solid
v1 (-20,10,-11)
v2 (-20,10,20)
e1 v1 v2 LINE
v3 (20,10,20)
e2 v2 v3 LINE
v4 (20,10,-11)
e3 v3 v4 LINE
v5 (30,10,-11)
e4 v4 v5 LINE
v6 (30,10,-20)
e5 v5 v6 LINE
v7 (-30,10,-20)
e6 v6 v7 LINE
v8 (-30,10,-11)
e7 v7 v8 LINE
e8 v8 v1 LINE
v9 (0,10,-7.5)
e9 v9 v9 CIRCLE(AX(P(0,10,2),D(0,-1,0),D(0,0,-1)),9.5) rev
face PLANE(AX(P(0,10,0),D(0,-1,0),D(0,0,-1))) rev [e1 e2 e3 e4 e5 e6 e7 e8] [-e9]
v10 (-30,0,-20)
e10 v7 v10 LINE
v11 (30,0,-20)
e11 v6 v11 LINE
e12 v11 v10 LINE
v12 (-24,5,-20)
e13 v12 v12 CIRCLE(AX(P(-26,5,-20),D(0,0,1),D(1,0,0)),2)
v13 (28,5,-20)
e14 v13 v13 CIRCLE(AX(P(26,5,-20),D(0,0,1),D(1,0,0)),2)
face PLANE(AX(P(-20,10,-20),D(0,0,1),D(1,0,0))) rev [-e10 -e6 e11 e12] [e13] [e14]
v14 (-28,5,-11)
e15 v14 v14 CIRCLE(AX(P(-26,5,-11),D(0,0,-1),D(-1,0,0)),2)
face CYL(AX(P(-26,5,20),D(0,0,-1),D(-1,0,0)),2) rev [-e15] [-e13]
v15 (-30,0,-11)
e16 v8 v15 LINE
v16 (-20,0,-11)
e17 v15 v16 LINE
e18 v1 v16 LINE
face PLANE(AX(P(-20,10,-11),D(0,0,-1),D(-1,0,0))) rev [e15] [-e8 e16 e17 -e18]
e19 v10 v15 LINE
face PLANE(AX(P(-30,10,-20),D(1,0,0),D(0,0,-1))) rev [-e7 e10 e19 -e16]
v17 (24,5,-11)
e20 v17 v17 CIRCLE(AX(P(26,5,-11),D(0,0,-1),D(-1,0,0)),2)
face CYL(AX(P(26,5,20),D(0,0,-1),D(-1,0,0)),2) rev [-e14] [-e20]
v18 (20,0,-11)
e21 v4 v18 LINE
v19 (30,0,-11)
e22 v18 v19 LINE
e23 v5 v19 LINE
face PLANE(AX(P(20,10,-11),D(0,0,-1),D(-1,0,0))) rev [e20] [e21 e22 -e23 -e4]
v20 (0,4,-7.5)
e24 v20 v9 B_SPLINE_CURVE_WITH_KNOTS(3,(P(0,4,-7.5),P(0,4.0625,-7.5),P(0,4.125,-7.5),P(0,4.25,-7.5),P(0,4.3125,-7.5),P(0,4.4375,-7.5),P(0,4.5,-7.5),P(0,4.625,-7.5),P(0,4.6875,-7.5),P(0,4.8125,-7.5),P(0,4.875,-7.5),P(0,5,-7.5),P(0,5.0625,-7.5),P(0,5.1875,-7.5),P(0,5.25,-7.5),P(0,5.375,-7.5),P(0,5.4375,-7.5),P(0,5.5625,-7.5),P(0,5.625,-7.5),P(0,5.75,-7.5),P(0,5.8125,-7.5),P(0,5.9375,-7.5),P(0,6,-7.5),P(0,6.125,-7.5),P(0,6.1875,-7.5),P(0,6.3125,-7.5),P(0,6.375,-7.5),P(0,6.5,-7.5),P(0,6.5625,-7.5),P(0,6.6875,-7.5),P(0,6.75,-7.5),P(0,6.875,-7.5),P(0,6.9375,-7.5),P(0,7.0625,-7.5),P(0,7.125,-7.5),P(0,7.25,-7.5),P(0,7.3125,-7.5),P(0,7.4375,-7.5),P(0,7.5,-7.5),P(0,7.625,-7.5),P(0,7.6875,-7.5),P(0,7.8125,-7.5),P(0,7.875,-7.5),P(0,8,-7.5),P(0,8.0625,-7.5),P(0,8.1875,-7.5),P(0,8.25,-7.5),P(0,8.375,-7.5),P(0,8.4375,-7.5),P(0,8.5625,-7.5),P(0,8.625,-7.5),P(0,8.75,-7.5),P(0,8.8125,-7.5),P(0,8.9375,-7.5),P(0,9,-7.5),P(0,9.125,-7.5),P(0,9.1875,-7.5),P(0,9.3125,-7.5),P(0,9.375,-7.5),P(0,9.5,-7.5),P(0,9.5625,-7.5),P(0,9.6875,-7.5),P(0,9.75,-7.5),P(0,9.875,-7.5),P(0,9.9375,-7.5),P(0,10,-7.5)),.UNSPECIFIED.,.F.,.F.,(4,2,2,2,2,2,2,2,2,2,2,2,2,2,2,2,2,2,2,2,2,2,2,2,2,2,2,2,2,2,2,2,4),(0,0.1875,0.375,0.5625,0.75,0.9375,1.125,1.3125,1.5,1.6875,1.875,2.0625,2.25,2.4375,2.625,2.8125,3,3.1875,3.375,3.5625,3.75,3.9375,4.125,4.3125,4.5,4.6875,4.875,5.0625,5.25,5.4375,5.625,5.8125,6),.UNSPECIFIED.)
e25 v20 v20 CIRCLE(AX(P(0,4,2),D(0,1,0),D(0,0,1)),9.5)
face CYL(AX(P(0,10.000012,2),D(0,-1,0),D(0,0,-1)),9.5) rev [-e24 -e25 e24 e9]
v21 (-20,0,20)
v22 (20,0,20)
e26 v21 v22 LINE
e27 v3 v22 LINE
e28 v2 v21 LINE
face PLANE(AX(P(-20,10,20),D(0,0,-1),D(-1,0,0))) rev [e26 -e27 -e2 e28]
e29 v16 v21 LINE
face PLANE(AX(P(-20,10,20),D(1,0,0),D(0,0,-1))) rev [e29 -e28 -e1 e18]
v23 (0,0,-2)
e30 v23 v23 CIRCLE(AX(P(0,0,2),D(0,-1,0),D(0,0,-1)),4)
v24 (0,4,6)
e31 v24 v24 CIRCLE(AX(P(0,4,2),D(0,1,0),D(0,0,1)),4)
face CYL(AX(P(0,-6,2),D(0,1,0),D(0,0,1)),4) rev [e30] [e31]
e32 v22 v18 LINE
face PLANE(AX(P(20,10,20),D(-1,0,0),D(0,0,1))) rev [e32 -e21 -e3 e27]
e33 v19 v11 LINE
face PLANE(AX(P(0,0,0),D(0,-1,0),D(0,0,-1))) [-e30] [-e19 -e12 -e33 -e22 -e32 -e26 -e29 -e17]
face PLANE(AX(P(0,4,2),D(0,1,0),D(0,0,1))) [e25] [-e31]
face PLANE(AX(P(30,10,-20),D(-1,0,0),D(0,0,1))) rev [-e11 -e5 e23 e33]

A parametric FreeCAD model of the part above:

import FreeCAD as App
import Part
import Sketcher
from FreeCAD import Vector
Q = App.Units.Quantity


def add_polygon(sketch, points):
    """Adds a closed chain of lines whose ends are joined by coincident constraints."""
    first, n = sketch.GeometryCount, len(points)
    for a, b in zip(points, points[1:] + points[:1]):
        sketch.addGeometry(Part.LineSegment(App.Vector(*a, 0), App.Vector(*b, 0)), False)
    for i in range(n):
        sketch.addConstraint(Sketcher.Constraint("Coincident", first + i, 2, first + (i + 1) % n, 1))

doc = App.newDocument("Part")
params = doc.addObject("Spreadsheet::Sheet", "Params")
for row, (alias, value) in enumerate([
    ("sketch1_width", "40 mm"),
    ("sketch1_width2", "10 mm"),
    ("sketch1_height", "31 mm"),
    ("sketch1_height2", "9 mm"),
    ("pad1_length", "10 mm"),
    ("sketch2_diameter", "19 mm"),
    ("pocket1_length", "38.416574 mm"),
    ("pocket1_length2", "6 mm"),
    ("sketch3_diameter", "8 mm"),
    ("pocket2_length", "10 mm"),
    ("sketch4_diameter", "4 mm"),
], start=1):
    params.set(f"A{row}", alias)
    params.set(f"B{row}", "=" + value)
    params.setAlias(f"B{row}", alias)

body = doc.addObject("PartDesign::Body", "Body")

sketch1 = body.newObject("Sketcher::SketchObject", "Sketch")
sketch1.AttachmentSupport = (doc.getObject("XZ_Plane"), [""])
sketch1.MapMode = "FlatFace"
add_polygon(sketch1, [(-20, 20), (20, 20), (20, -11), (30, -11), (30, -20), (-30, -20), (-30, -11), (-20, -11)])
sketch1.addConstraint([
    Sketcher.Constraint("Horizontal", 0),
    Sketcher.Constraint("Vertical", 1),
    Sketcher.Constraint("Horizontal", 2),
    Sketcher.Constraint("Vertical", 3),
    Sketcher.Constraint("Horizontal", 4),
    Sketcher.Constraint("Vertical", 5),
    Sketcher.Constraint("Horizontal", 6),
    Sketcher.Constraint("Vertical", 7),
    Sketcher.Constraint("Symmetric", 2, 2, 5, 2, -2),
    Sketcher.Constraint("Equal", 2, 6),
    Sketcher.Constraint("DistanceX", 0, 1, 0, 2, Q("40 mm")),
    Sketcher.Constraint("DistanceX", 2, 1, 2, 2, Q("10 mm")),
    Sketcher.Constraint("DistanceY", 1, 2, 1, 1, Q("31 mm")),
    Sketcher.Constraint("DistanceY", 3, 2, 3, 1, Q("9 mm")),
    Sketcher.Constraint("DistanceY", -1, 1, 0, 2, Q("20 mm")),
])
sketch1.setExpression("Constraints[18]", "Params.sketch1_width")
sketch1.setExpression("Constraints[19]", "Params.sketch1_width2")
sketch1.setExpression("Constraints[20]", "Params.sketch1_height")
sketch1.setExpression("Constraints[21]", "Params.sketch1_height2")
pad1 = body.newObject("PartDesign::Pad", "Pad")
pad1.Profile = sketch1
pad1.setExpression("Length", "Params.pad1_length")
pad1.Reversed = True

sketch2 = body.newObject("Sketcher::SketchObject", "Sketch001")
sketch2.AttachmentSupport = (doc.getObject("XZ_Plane"), [""])
sketch2.MapMode = "FlatFace"
sketch2.AttachmentOffset = App.Placement(Vector(0, 0, -10), App.Rotation())
sketch2.addGeometry(Part.Circle(Vector(0, 2, 0), Vector(0, 0, 1), 9.5), False)
sketch2.addConstraint([
    Sketcher.Constraint("PointOnObject", 0, 3, -2),
    Sketcher.Constraint("Diameter", 0, Q("19 mm")),
    Sketcher.Constraint("DistanceY", -1, 1, 0, 3, Q("2 mm")),
])
sketch2.setExpression("Constraints[1]", "Params.sketch2_diameter")
pocket1 = body.newObject("PartDesign::Pocket", "Pocket")
pocket1.Profile = sketch2
pocket1.Type = "TwoLengths"
pocket1.setExpression("Length", "Params.pocket1_length")
pocket1.setExpression("Length2", "Params.pocket1_length2")

sketch3 = body.newObject("Sketcher::SketchObject", "Sketch002")
sketch3.AttachmentSupport = (doc.getObject("XZ_Plane"), [""])
sketch3.MapMode = "FlatFace"
sketch3.AttachmentOffset = App.Placement(Vector(0, 0, -4), App.Rotation())
sketch3.addGeometry(Part.Circle(Vector(0, 2, 0), Vector(0, 0, 1), 4), False)
sketch3.addConstraint([
    Sketcher.Constraint("PointOnObject", 0, 3, -2),
    Sketcher.Constraint("Diameter", 0, Q("8 mm")),
    Sketcher.Constraint("DistanceY", -1, 1, 0, 3, Q("2 mm")),
])
sketch3.setExpression("Constraints[1]", "Params.sketch3_diameter")
pocket2 = body.newObject("PartDesign::Pocket", "Pocket001")
pocket2.Profile = sketch3
pocket2.setExpression("Length", "Params.pocket2_length")
pocket2.Reversed = True

sketch4 = body.newObject("Sketcher::SketchObject", "Sketch003")
sketch4.AttachmentSupport = (doc.getObject("XY_Plane"), [""])
sketch4.MapMode = "FlatFace"
sketch4.AttachmentOffset = App.Placement(Vector(0, 0, -20), App.Rotation())
sketch4.addGeometry([
    Part.Circle(Vector(26, 5, 0), Vector(0, 0, 1), 2),
    Part.Circle(Vector(-26, 5, 0), Vector(0, 0, 1), 2),
], False)
sketch4.addConstraint([
    Sketcher.Constraint("Equal", 0, 1),
    Sketcher.Constraint("Symmetric", 0, 3, 1, 3, -2),
    Sketcher.Constraint("Diameter", 0, Q("4 mm")),
    Sketcher.Constraint("DistanceX", -1, 1, 0, 3, Q("26 mm")),
    Sketcher.Constraint("DistanceY", -1, 1, 0, 3, Q("5 mm")),
])
sketch4.setExpression("Constraints[2]", "Params.sketch4_diameter")
pocket3 = body.newObject("PartDesign::Pocket", "Pocket002")
pocket3.Profile = sketch4
pocket3.Type = "ThroughAll"
pocket3.Midplane = True

doc.recompute()
